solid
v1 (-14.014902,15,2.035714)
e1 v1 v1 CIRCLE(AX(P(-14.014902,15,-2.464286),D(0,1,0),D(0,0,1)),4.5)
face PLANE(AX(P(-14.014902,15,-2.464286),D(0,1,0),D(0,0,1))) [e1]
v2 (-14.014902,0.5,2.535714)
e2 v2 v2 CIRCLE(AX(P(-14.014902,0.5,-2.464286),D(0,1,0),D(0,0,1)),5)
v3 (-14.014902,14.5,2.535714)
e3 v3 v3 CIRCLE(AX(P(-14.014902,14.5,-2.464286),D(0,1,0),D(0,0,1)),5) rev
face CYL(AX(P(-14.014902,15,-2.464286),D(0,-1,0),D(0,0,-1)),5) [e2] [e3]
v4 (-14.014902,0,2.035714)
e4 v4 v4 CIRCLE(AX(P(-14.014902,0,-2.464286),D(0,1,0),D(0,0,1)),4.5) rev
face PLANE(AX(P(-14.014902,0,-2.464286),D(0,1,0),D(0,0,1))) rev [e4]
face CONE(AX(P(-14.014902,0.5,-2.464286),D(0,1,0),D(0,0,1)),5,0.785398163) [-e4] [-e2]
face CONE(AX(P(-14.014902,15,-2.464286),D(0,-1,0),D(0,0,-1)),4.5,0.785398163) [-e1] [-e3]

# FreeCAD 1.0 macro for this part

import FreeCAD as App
import Part
import Sketcher
from FreeCAD import Vector


def edges_at(feature, points):
    """Names of the edges that pass closest to the given points."""
    edges = feature.Shape.Edges
    near = lambda p: min(range(len(edges)), key=lambda i: edges[i].distToShape(Part.Vertex(*p))[0])
    return sorted({f"Edge{near(p) + 1}" for p in points})

doc = App.newDocument("Part")
body = doc.addObject("PartDesign::Body", "Body")

# Sketch on XZ plane
sketch1 = body.newObject("Sketcher::SketchObject", "Sketch")
sketch1.AttachmentSupport = (doc.getObject("XZ_Plane"), [""])
sketch1.MapMode = "FlatFace"
sketch1.addGeometry(Part.Circle(Vector(-14, -2, 0), Vector(0, 0, 1), 5), False)
sketch1.addConstraint([
    Sketcher.Constraint("Diameter", 0, 10.0),
    Sketcher.Constraint("DistanceX", 0, 3, -1, 1, 14.014902),
    Sketcher.Constraint("DistanceY", 0, 3, -1, 1, 2.464286),
])
pad1 = body.newObject("PartDesign::Pad", "Pad")
pad1.Profile = sketch1
pad1.Length = 15
pad1.Reversed = True
doc.recompute()

chamfer = body.newObject("PartDesign::Chamfer", "Chamfer")
chamfer.Base = (pad1, edges_at(pad1, [(-14.015, 0, -7.464), (-14.015, 15, -7.464)]))
chamfer.Size = 0.5

doc.recompute()
